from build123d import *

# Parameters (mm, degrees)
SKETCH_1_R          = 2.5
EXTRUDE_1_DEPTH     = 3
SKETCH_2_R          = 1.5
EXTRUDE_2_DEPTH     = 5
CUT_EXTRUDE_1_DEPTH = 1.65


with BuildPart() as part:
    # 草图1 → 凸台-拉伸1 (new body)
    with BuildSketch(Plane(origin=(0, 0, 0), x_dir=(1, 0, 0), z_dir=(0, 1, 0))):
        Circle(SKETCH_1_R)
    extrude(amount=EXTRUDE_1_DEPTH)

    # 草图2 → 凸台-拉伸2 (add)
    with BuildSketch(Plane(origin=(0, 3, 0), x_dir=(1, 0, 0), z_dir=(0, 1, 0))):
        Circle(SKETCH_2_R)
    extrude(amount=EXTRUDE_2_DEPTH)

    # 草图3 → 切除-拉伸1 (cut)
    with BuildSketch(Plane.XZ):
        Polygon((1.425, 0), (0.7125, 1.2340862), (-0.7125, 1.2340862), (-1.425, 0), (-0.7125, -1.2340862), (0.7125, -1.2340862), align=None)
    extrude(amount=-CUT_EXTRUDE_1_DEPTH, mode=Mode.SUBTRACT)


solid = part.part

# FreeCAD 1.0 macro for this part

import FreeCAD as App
import Part
import Sketcher
Q = App.Units.Quantity

doc = App.newDocument("Part")
body = doc.addObject("PartDesign::Body", "Body")

# Sketch on XZ plane
sketch1 = doc.addObject("Sketcher::SketchObject", "Sketch")
body.addObject(sketch1)
sketch1.AttachmentSupport = (doc.XZ_Plane, [""])
sketch1.MapMode = "FlatFace"
sketch1.addGeometry(Part.Circle(App.Vector(0, 0, 0), App.Vector(0, 0, 1), 2.5), False)
sketch1.addConstraint([
    Sketcher.Constraint("Coincident", 0, 3, -1, 1),
    Sketcher.Constraint("Diameter", 0, 5.0),
])
pad1 = doc.addObject("PartDesign::Pad", "Pad")
body.addObject(pad1)
pad1.Profile = sketch1
pad1.Length = 3
pad1.Reversed = True

# Sketch on XZ plane
sketch2 = doc.addObject("Sketcher::SketchObject", "Sketch001")
body.addObject(sketch2)
sketch2.AttachmentSupport = (doc.XZ_Plane, [""])
sketch2.MapMode = "FlatFace"
sketch2.AttachmentOffset = App.Placement(App.Vector(0, 0, -3), App.Rotation())
sketch2.addGeometry(Part.Circle(App.Vector(0, 0, 0), App.Vector(0, 0, 1), 1.5), False)
sketch2.addConstraint([
    Sketcher.Constraint("Coincident", 0, 3, -1, 1),
    Sketcher.Constraint("Diameter", 0, 3.0),
])
pad2 = doc.addObject("PartDesign::Pad", "Pad001")
body.addObject(pad2)
pad2.Profile = sketch2
pad2.Length = 5
pad2.Reversed = True

# Sketch on XZ plane
sketch3 = doc.addObject("Sketcher::SketchObject", "Sketch002")
body.addObject(sketch3)
sketch3.AttachmentSupport = (doc.XZ_Plane, [""])
sketch3.MapMode = "FlatFace"
sketch3.addGeometry([
    Part.LineSegment(App.Vector(1.4, 0, 0), App.Vector(0.7, 1.2, 0)),  # 0
    Part.LineSegment(App.Vector(0.7, 1.2, 0), App.Vector(-0.7, 1.2, 0)),  # 1
    Part.LineSegment(App.Vector(-0.7, 1.2, 0), App.Vector(-1.4, 0, 0)),  # 2
    Part.LineSegment(App.Vector(-1.4, 0, 0), App.Vector(-0.7, -1.2, 0)),  # 3
    Part.LineSegment(App.Vector(-0.7, -1.2, 0), App.Vector(0.7, -1.2, 0)),  # 4
    Part.LineSegment(App.Vector(0.7, -1.2, 0), App.Vector(1.4, 0, 0)),  # 5
], False)
sketch3.addConstraint([
    Sketcher.Constraint("Coincident", 0, 2, 1, 1),
    Sketcher.Constraint("Coincident", 1, 2, 2, 1),
    Sketcher.Constraint("Coincident", 2, 2, 3, 1),
    Sketcher.Constraint("Coincident", 3, 2, 4, 1),
    Sketcher.Constraint("Coincident", 4, 2, 5, 1),
    Sketcher.Constraint("Coincident", 5, 2, 0, 1),
    Sketcher.Constraint("Horizontal", 1),
    Sketcher.Constraint("Horizontal", 4),
    Sketcher.Constraint("Symmetric", 0, 2, 3, 2, -1, 1),
    Sketcher.Constraint("Symmetric", 2, 2, 5, 2, -1, 1),
    Sketcher.Constraint("PointOnObject", 2, 2, -1),
    Sketcher.Constraint("Parallel", 2, 5),
    Sketcher.Constraint("Vertical", 1, 2, 3, 2),
    Sketcher.Constraint("Angle", 0, Q("120 deg")),
    Sketcher.Constraint("DistanceX", 1, 2, 1, 1, 1.425),
    Sketcher.Constraint("DistanceX", 2, 2, 5, 2, 2.85),
])
pocket1 = doc.addObject("PartDesign::Pocket", "Pocket")
body.addObject(pocket1)
pocket1.Profile = sketch3
pocket1.Length = 1.65

doc.recompute()
